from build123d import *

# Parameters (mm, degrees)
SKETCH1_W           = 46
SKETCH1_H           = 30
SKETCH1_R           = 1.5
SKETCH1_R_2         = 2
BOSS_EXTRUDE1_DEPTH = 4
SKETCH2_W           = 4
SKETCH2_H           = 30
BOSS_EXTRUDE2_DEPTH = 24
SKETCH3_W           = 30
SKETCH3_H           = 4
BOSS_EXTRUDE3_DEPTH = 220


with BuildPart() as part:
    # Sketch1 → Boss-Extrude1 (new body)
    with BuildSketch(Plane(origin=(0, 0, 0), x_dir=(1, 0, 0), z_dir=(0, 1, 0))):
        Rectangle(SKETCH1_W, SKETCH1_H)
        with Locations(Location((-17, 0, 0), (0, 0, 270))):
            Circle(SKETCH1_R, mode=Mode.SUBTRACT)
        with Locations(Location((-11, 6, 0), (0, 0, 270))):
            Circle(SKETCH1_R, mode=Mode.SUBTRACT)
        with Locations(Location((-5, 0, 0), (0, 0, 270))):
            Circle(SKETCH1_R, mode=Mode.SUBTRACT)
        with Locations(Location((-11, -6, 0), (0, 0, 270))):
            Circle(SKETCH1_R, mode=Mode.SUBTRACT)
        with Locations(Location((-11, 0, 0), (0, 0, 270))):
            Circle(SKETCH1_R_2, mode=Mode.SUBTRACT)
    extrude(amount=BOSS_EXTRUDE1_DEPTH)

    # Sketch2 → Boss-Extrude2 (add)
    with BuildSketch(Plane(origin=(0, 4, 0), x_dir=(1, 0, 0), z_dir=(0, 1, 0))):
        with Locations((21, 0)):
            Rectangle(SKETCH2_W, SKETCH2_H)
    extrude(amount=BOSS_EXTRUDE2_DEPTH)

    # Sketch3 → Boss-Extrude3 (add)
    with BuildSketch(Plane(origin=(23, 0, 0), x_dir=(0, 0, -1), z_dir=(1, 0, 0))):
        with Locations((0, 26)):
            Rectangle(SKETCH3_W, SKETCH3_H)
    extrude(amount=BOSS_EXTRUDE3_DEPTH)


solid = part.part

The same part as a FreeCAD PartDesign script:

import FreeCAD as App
import Part
import Sketcher
Q = App.Units.Quantity

doc = App.newDocument("Part")
body = doc.addObject("PartDesign::Body", "Body")

# Sketch on XZ plane
sketch1 = body.newObject("Sketcher::SketchObject", "Sketch")
sketch1.AttachmentSupport = (doc.getObject("XZ_Plane"), [""])
sketch1.MapMode = "FlatFace"
sketch1.addGeometry([
    Part.LineSegment(App.Vector(-23, -15, 0), App.Vector(-23, 15, 0)),  # 0
    Part.LineSegment(App.Vector(-23, 15, 0), App.Vector(23, 15, 0)),  # 1
    Part.LineSegment(App.Vector(23, 15, 0), App.Vector(23, -15, 0)),  # 2
    Part.LineSegment(App.Vector(23, -15, 0), App.Vector(-23, -15, 0)),  # 3
    Part.Circle(App.Vector(-11, 6, 0), App.Vector(0, 0, 1), 1.5),  # 4
    Part.Circle(App.Vector(-17, 0, 0), App.Vector(0, 0, 1), 1.5),  # 5
    Part.Circle(App.Vector(-11, 0, 0), App.Vector(0, 0, 1), 2),  # 6
    Part.Circle(App.Vector(-5, 0, 0), App.Vector(0, 0, 1), 1.5),  # 7
    Part.Circle(App.Vector(-11, -6, 0), App.Vector(0, 0, 1), 1.5),  # 8
], False)
sketch1.addConstraint([
    Sketcher.Constraint("Coincident", 0, 2, 1, 1),
    Sketcher.Constraint("Coincident", 1, 2, 2, 1),
    Sketcher.Constraint("Coincident", 2, 2, 3, 1),
    Sketcher.Constraint("Coincident", 3, 2, 0, 1),
    Sketcher.Constraint("Vertical", 0),
    Sketcher.Constraint("Horizontal", 1),
    Sketcher.Constraint("Vertical", 2),
    Sketcher.Constraint("Horizontal", 3),
    Sketcher.Constraint("Equal", 4, 5),
    Sketcher.Constraint("Equal", 5, 7),
    Sketcher.Constraint("Equal", 7, 8),
    Sketcher.Constraint("Symmetric", 0, 2, 2, 2, -1, 1),
    Sketcher.Constraint("Symmetric", 4, 3, 8, 3, -1),
    Sketcher.Constraint("PointOnObject", 5, 3, -1),
    Sketcher.Constraint("PointOnObject", 6, 3, -1),
    Sketcher.Constraint("PointOnObject", 7, 3, -1),
    Sketcher.Constraint("Vertical", 4, 3, 6, 3),
    Sketcher.Constraint("Diameter", 4, Q("3 mm")),
    Sketcher.Constraint("Diameter", 6, Q("4 mm")),
    Sketcher.Constraint("DistanceX", 1, 1, 1, 2, Q("46 mm")),
    Sketcher.Constraint("DistanceY", 0, 1, 0, 2, Q("30 mm")),
    Sketcher.Constraint("DistanceX", 4, 3, -1, 1, Q("11 mm")),
    Sketcher.Constraint("DistanceY", -1, 1, 4, 3, Q("6 mm")),
    Sketcher.Constraint("DistanceX", 5, 3, -1, 1, Q("17 mm")),
    Sketcher.Constraint("DistanceX", 7, 3, -1, 1, Q("5 mm")),
])
pad1 = body.newObject("PartDesign::Pad", "Pad")
pad1.Profile = sketch1
pad1.Length = 4
pad1.Reversed = True

# Sketch on XZ plane
sketch2 = body.newObject("Sketcher::SketchObject", "Sketch001")
sketch2.AttachmentSupport = (doc.getObject("XZ_Plane"), [""])
sketch2.MapMode = "FlatFace"
sketch2.AttachmentOffset = App.Placement(App.Vector(0, 0, -4), App.Rotation())
sketch2.addGeometry([
    Part.LineSegment(App.Vector(19, -15, 0), App.Vector(19, 15, 0)),
    Part.LineSegment(App.Vector(19, 15, 0), App.Vector(23, 15, 0)),
    Part.LineSegment(App.Vector(23, 15, 0), App.Vector(23, -15, 0)),
    Part.LineSegment(App.Vector(23, -15, 0), App.Vector(19, -15, 0)),
], False)
sketch2.addConstraint([
    Sketcher.Constraint("Coincident", 0, 2, 1, 1),
    Sketcher.Constraint("Coincident", 1, 2, 2, 1),
    Sketcher.Constraint("Coincident", 2, 2, 3, 1),
    Sketcher.Constraint("Coincident", 3, 2, 0, 1),
    Sketcher.Constraint("Vertical", 0),
    Sketcher.Constraint("Horizontal", 1),
    Sketcher.Constraint("Vertical", 2),
    Sketcher.Constraint("Horizontal", 3),
    Sketcher.Constraint("DistanceX", 1, 1, 1, 2, Q("4 mm")),
    Sketcher.Constraint("DistanceY", 0, 1, 0, 2, Q("30 mm")),
    Sketcher.Constraint("DistanceX", -1, 1, 0, 2, Q("19 mm")),
    Sketcher.Constraint("DistanceY", -1, 1, 0, 2, Q("15 mm")),
])
pad2 = body.newObject("PartDesign::Pad", "Pad001")
pad2.Profile = sketch2
pad2.Length = 24
pad2.Reversed = True

# Sketch on YZ plane
sketch3 = body.newObject("Sketcher::SketchObject", "Sketch002")
sketch3.AttachmentSupport = (doc.getObject("YZ_Plane"), [""])
sketch3.MapMode = "FlatFace"
sketch3.AttachmentOffset = App.Placement(App.Vector(0, 0, 23), App.Rotation())
sketch3.addGeometry([
    Part.LineSegment(App.Vector(28, 15, 0), App.Vector(24, 15, 0)),
    Part.LineSegment(App.Vector(24, 15, 0), App.Vector(24, -15, 0)),
    Part.LineSegment(App.Vector(24, -15, 0), App.Vector(28, -15, 0)),
    Part.LineSegment(App.Vector(28, -15, 0), App.Vector(28, 15, 0)),
], False)
sketch3.addConstraint([
    Sketcher.Constraint("Coincident", 0, 2, 1, 1),
    Sketcher.Constraint("Coincident", 1, 2, 2, 1),
    Sketcher.Constraint("Coincident", 2, 2, 3, 1),
    Sketcher.Constraint("Coincident", 3, 2, 0, 1),
    Sketcher.Constraint("Horizontal", 0),
    Sketcher.Constraint("Vertical", 1),
    Sketcher.Constraint("Horizontal", 2),
    Sketcher.Constraint("Vertical", 3),
    Sketcher.Constraint("DistanceX", 0, 2, 0, 1, Q("4 mm")),
    Sketcher.Constraint("DistanceY", 1, 2, 1, 1, Q("30 mm")),
    Sketcher.Constraint("DistanceX", -1, 1, 0, 2, Q("24 mm")),
    Sketcher.Constraint("DistanceY", -1, 1, 0, 2, Q("15 mm")),
])
pad3 = body.newObject("PartDesign::Pad", "Pad002")
pad3.Profile = sketch3
pad3.Length = 220

doc.recompute()
